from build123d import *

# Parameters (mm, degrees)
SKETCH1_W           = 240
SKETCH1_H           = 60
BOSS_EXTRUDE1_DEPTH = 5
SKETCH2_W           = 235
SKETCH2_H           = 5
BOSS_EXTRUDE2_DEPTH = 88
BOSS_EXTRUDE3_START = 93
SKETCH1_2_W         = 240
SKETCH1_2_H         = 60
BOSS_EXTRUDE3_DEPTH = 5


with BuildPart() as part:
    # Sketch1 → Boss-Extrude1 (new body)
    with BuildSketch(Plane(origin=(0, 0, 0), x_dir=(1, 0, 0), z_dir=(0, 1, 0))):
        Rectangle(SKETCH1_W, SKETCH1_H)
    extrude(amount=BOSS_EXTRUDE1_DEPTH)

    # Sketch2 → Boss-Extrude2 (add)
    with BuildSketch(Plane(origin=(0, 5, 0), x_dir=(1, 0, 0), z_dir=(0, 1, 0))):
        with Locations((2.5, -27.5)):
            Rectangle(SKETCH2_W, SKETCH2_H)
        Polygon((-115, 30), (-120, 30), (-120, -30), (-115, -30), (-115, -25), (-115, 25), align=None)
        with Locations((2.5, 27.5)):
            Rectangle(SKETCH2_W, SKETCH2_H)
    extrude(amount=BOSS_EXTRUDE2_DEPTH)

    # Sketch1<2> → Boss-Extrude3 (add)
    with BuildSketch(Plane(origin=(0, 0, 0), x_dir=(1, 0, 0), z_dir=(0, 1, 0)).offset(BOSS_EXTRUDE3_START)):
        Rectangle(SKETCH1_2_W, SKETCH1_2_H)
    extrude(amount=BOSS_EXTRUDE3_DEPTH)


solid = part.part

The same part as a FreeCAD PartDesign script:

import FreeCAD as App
import Part
import Sketcher

V = App.Vector
Q = App.Units.Quantity


def add_polygon(sketch, points):
    """Adds a closed chain of lines whose ends are joined by coincident constraints."""
    first, n = sketch.GeometryCount, len(points)
    for a, b in zip(points, points[1:] + points[:1]):
        sketch.addGeometry(Part.LineSegment(App.Vector(*a, 0), App.Vector(*b, 0)), False)
    for i in range(n):
        sketch.addConstraint(Sketcher.Constraint("Coincident", first + i, 2, first + (i + 1) % n, 1))

doc = App.newDocument("Part")
body = doc.addObject("PartDesign::Body", "Body")

# Sketch on XZ plane
sketch1 = body.newObject("Sketcher::SketchObject", "Sketch")
sketch1.AttachmentSupport = (doc.getObject("XZ_Plane"), [""])
sketch1.MapMode = "FlatFace"
add_polygon(sketch1, [(-120, -30), (-120, 30), (120, 30), (120, -30)])  # lines 0-3
sketch1.addConstraint([
    Sketcher.Constraint("Vertical", 0),
    Sketcher.Constraint("Horizontal", 1),
    Sketcher.Constraint("Vertical", 2),
    Sketcher.Constraint("Horizontal", 3),
    Sketcher.Constraint("Symmetric", 0, 2, 2, 2, -1, 1),
    Sketcher.Constraint("DistanceX", 1, 1, 1, 2, Q("240 mm")),
    Sketcher.Constraint("DistanceY", 0, 1, 0, 2, Q("60 mm")),
])
pad1 = body.newObject("PartDesign::Pad", "Pad")
pad1.Profile = sketch1
pad1.Length = 5
pad1.Reversed = True

# Sketch on XZ plane
sketch2 = body.newObject("Sketcher::SketchObject", "Sketch001")
sketch2.AttachmentSupport = (doc.getObject("XZ_Plane"), [""])
sketch2.MapMode = "FlatFace"
sketch2.AttachmentOffset = App.Placement(V(0, 0, -5), App.Rotation())
add_polygon(sketch2, [(120, 30), (120, 25), (-115, 25), (-115, -25), (120, -25), (120, -30), (-120, -30), (-120, 30)])  # lines 0-7
sketch2.addConstraint([
    Sketcher.Constraint("Vertical", 0),
    Sketcher.Constraint("Horizontal", 1),
    Sketcher.Constraint("Vertical", 2),
    Sketcher.Constraint("Horizontal", 3),
    Sketcher.Constraint("Vertical", 4),
    Sketcher.Constraint("Horizontal", 5),
    Sketcher.Constraint("Vertical", 6),
    Sketcher.Constraint("Horizontal", 7),
    Sketcher.Constraint("Symmetric", 4, 2, 6, 2, -1, 1),
    Sketcher.Constraint("Symmetric", 0, 2, 3, 2, -1),
    Sketcher.Constraint("DistanceX", 1, 2, 1, 1, Q("235 mm")),
    Sketcher.Constraint("DistanceX", 5, 2, 5, 1, Q("240 mm")),
    Sketcher.Constraint("DistanceY", 0, 2, 0, 1, Q("5 mm")),
    Sketcher.Constraint("DistanceY", 2, 2, 2, 1, Q("50 mm")),
])
pad2 = body.newObject("PartDesign::Pad", "Pad001")
pad2.Profile = sketch2
pad2.Length = 88
pad2.Reversed = True

# Sketch on XZ plane
sketch3 = body.newObject("Sketcher::SketchObject", "Sketch002")
sketch3.AttachmentSupport = (doc.getObject("XZ_Plane"), [""])
sketch3.MapMode = "FlatFace"
sketch3.AttachmentOffset = App.Placement(V(0, 0, -93), App.Rotation())
add_polygon(sketch3, [(-120, -30), (-120, 30), (120, 30), (120, -30)])  # lines 0-3
sketch3.addConstraint([
    Sketcher.Constraint("Vertical", 0),
    Sketcher.Constraint("Horizontal", 1),
    Sketcher.Constraint("Vertical", 2),
    Sketcher.Constraint("Horizontal", 3),
    Sketcher.Constraint("Symmetric", 0, 2, 2, 2, -1, 1),
    Sketcher.Constraint("DistanceX", 1, 1, 1, 2, Q("240 mm")),
    Sketcher.Constraint("DistanceY", 0, 1, 0, 2, Q("60 mm")),
])
pad3 = body.newObject("PartDesign::Pad", "Pad002")
pad3.Profile = sketch3
pad3.Length = 5
pad3.Reversed = True

doc.recompute()
